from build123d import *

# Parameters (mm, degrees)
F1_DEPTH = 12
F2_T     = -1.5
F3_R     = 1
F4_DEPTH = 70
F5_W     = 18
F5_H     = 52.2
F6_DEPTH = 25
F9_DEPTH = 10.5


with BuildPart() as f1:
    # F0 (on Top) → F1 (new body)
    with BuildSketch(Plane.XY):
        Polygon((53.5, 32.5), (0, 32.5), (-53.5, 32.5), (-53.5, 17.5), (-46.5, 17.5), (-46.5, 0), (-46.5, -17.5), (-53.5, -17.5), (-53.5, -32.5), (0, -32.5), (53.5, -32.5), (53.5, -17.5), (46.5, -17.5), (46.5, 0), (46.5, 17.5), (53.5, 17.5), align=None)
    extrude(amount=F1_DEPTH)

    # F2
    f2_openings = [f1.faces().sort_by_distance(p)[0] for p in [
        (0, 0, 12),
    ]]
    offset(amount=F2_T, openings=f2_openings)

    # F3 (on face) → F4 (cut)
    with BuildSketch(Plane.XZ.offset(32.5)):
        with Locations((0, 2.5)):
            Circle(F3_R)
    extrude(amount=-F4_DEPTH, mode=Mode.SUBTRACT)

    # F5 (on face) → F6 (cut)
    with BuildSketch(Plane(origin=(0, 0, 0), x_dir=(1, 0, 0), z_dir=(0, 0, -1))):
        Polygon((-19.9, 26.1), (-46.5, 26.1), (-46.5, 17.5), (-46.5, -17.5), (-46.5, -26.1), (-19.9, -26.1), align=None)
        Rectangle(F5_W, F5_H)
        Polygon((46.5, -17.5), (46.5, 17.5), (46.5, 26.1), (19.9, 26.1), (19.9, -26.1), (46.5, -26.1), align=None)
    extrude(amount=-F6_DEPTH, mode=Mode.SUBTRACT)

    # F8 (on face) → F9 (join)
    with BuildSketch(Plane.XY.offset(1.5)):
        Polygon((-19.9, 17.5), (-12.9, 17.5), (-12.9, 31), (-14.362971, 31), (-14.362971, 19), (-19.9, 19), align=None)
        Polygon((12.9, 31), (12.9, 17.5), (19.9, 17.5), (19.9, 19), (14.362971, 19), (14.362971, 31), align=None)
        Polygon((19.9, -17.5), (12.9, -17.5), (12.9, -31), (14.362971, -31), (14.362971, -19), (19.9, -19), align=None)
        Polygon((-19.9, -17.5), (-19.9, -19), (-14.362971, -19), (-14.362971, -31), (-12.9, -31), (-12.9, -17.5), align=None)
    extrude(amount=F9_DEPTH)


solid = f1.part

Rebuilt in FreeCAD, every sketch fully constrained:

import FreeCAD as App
import Part
import Sketcher

V = App.Vector
Q = App.Units.Quantity


def faces_at(feature, points):
    """Names of the faces that lie closest to the given points."""
    faces = feature.Shape.Faces
    near = lambda p: min(range(len(faces)), key=lambda i: faces[i].distToShape(Part.Vertex(*p))[0])
    return sorted({f"Face{near(p) + 1}" for p in points})


def add_polygon(sketch, points):
    """Adds a closed chain of lines whose ends are joined by coincident constraints."""
    first, n = sketch.GeometryCount, len(points)
    for a, b in zip(points, points[1:] + points[:1]):
        sketch.addGeometry(Part.LineSegment(App.Vector(*a, 0), App.Vector(*b, 0)), False)
    for i in range(n):
        sketch.addConstraint(Sketcher.Constraint("Coincident", first + i, 2, first + (i + 1) % n, 1))

doc = App.newDocument("Part")
params = doc.addObject("Spreadsheet::Sheet", "Params")
for row, (alias, value) in enumerate([
    ("sketch1_width", "107 mm"),
    ("sketch1_width2", "7 mm"),
    ("sketch1_height", "15 mm"),
    ("sketch1_height2", "35 mm"),
    ("pad1_length", "12 mm"),
    ("thickness_wall", "1.5 mm"),
    ("sketch2_diameter", "2 mm"),
    ("pocket1_length", "70 mm"),
    ("sketch3_width", "18 mm"),
    ("sketch3_width2", "26.6 mm"),
    ("sketch3_height", "52.2 mm"),
    ("pocket2_length", "25 mm"),
    ("sketch4_width", "7 mm"),
    ("sketch4_height", "12 mm"),
    ("sketch4_height2", "13.5 mm"),
    ("pad2_length", "10.5 mm"),
], start=1):
    params.set(f"A{row}", alias)
    params.set(f"B{row}", "=" + value)
    params.setAlias(f"B{row}", alias)

body = doc.addObject("PartDesign::Body", "Body")

sketch1 = doc.addObject("Sketcher::SketchObject", "Sketch")
body.addObject(sketch1)
sketch1.AttachmentSupport = (doc.XY_Plane, [""])
sketch1.MapMode = "FlatFace"
add_polygon(sketch1, [(54, 32), (-54, 32), (-54, 18), (-46, 18), (-46, -18), (-54, -18), (-54, -32), (54, -32), (54, -18), (46, -18), (46, 18), (54, 18)])
sketch1.addConstraint(Sketcher.Constraint("Horizontal", 0))
sketch1.addConstraint(Sketcher.Constraint("Vertical", 1))
sketch1.addConstraint(Sketcher.Constraint("Horizontal", 2))
sketch1.addConstraint(Sketcher.Constraint("Vertical", 3))
sketch1.addConstraint(Sketcher.Constraint("Horizontal", 4))
sketch1.addConstraint(Sketcher.Constraint("Vertical", 5))
sketch1.addConstraint(Sketcher.Constraint("Horizontal", 6))
sketch1.addConstraint(Sketcher.Constraint("Vertical", 7))
sketch1.addConstraint(Sketcher.Constraint("Horizontal", 8))
sketch1.addConstraint(Sketcher.Constraint("Vertical", 9))
sketch1.addConstraint(Sketcher.Constraint("Horizontal", 10))
sketch1.addConstraint(Sketcher.Constraint("Vertical", 11))
sketch1.addConstraint(Sketcher.Constraint("Symmetric", 0, 2, 6, 2, -1, 1))
sketch1.addConstraint(Sketcher.Constraint("Symmetric", 2, 2, 8, 2, -1, 1))
sketch1.addConstraint(Sketcher.Constraint("Symmetric", 4, 2, 10, 2, -1, 1))
sketch1.addConstraint(Sketcher.Constraint("Symmetric", 4, 2, 7, 2, -2))
sketch1.addConstraint(Sketcher.Constraint("DistanceX", 0, 2, 0, 1, Q("107 mm")))
sketch1.addConstraint(Sketcher.Constraint("DistanceX", 2, 1, 2, 2, Q("7 mm")))
sketch1.addConstraint(Sketcher.Constraint("DistanceY", 1, 2, 1, 1, Q("15 mm")))
sketch1.addConstraint(Sketcher.Constraint("DistanceY", 3, 2, 3, 1, Q("35 mm")))
sketch1.setExpression("Constraints[28]", "Params.sketch1_width")
sketch1.setExpression("Constraints[29]", "Params.sketch1_width2")
sketch1.setExpression("Constraints[30]", "Params.sketch1_height")
sketch1.setExpression("Constraints[31]", "Params.sketch1_height2")
pad1 = doc.addObject("PartDesign::Pad", "Pad")
body.addObject(pad1)
pad1.Profile = sketch1
pad1.setExpression("Length", "Params.pad1_length")
doc.recompute()

thickness = doc.addObject("PartDesign::Thickness", "Thickness")
body.addObject(thickness)
thickness.Base = (pad1, faces_at(pad1, [(0, 0, 12)]))
thickness.setExpression("Value", "Params.thickness_wall")
thickness.Reversed = True
thickness.Join = "Arc"

sketch2 = doc.addObject("Sketcher::SketchObject", "Sketch001")
body.addObject(sketch2)
sketch2.AttachmentSupport = (doc.XZ_Plane, [""])
sketch2.MapMode = "FlatFace"
sketch2.AttachmentOffset = App.Placement(V(0, 0, 32.5), App.Rotation())
sketch2.addGeometry(Part.Circle(V(0, 2.5, 0), V(0, 0, 1), 1), False)
sketch2.addConstraint(Sketcher.Constraint("PointOnObject", 0, 3, -2))
sketch2.addConstraint(Sketcher.Constraint("Diameter", 0, Q("2 mm")))
sketch2.addConstraint(Sketcher.Constraint("DistanceY", -1, 1, 0, 3, Q("2.5 mm")))
sketch2.setExpression("Constraints[1]", "Params.sketch2_diameter")
pocket1 = doc.addObject("PartDesign::Pocket", "Pocket")
body.addObject(pocket1)
pocket1.Profile = sketch2
pocket1.setExpression("Length", "Params.pocket1_length")

sketch3 = doc.addObject("Sketcher::SketchObject", "Sketch002")
body.addObject(sketch3)
sketch3.AttachmentSupport = (doc.XY_Plane, [""])
sketch3.MapMode = "FlatFace"
add_polygon(sketch3, [(-20, -26), (-46, -26), (-46, 26), (-20, 26)])
add_polygon(sketch3, [(-9, -26), (-9, 26), (9, 26), (9, -26)])
add_polygon(sketch3, [(46, -26), (20, -26), (20, 26), (46, 26)])
sketch3.addConstraint(Sketcher.Constraint("Horizontal", 0))
sketch3.addConstraint(Sketcher.Constraint("Vertical", 1))
sketch3.addConstraint(Sketcher.Constraint("Horizontal", 2))
sketch3.addConstraint(Sketcher.Constraint("Vertical", 3))
sketch3.addConstraint(Sketcher.Constraint("Vertical", 4))
sketch3.addConstraint(Sketcher.Constraint("Horizontal", 5))
sketch3.addConstraint(Sketcher.Constraint("Vertical", 6))
sketch3.addConstraint(Sketcher.Constraint("Horizontal", 7))
sketch3.addConstraint(Sketcher.Constraint("Horizontal", 8))
sketch3.addConstraint(Sketcher.Constraint("Vertical", 9))
sketch3.addConstraint(Sketcher.Constraint("Horizontal", 10))
sketch3.addConstraint(Sketcher.Constraint("Vertical", 11))
sketch3.addConstraint(Sketcher.Constraint("Symmetric", 4, 2, 6, 2, -1, 1))
sketch3.addConstraint(Sketcher.Constraint("Symmetric", 2, 2, 8, 2, -1, 1))
sketch3.addConstraint(Sketcher.Constraint("Symmetric", 0, 2, 10, 2, -1, 1))
sketch3.addConstraint(Sketcher.Constraint("Horizontal", 2, 2, 4, 2))
sketch3.addConstraint(Sketcher.Constraint("Horizontal", 3, 2, 6, 2))
sketch3.addConstraint(Sketcher.Constraint("DistanceX", 5, 1, 5, 2, Q("18 mm")))
sketch3.addConstraint(Sketcher.Constraint("DistanceX", 0, 2, 0, 1, Q("26.6 mm")))
sketch3.addConstraint(Sketcher.Constraint("DistanceY", 1, 1, 1, 2, Q("52.2 mm")))
sketch3.addConstraint(Sketcher.Constraint("DistanceX", 0, 2, -1, 1, Q("46.5 mm")))
sketch3.setExpression("Constraints[29]", "Params.sketch3_width")
sketch3.setExpression("Constraints[30]", "Params.sketch3_width2")
sketch3.setExpression("Constraints[31]", "Params.sketch3_height")
pocket2 = doc.addObject("PartDesign::Pocket", "Pocket001")
body.addObject(pocket2)
pocket2.Profile = sketch3
pocket2.setExpression("Length", "Params.pocket2_length")
pocket2.Reversed = True

sketch4 = doc.addObject("Sketcher::SketchObject", "Sketch003")
body.addObject(sketch4)
sketch4.AttachmentSupport = (doc.XY_Plane, [""])
sketch4.MapMode = "FlatFace"
sketch4.AttachmentOffset = App.Placement(V(0, 0, 1.5), App.Rotation())
add_polygon(sketch4, [(-19.9, 17.5), (-12.9, 17.5), (-12.9, 31), (-14.4, 31), (-14.4, 19), (-19.9, 19)])
add_polygon(sketch4, [(12.9, 31), (12.9, 17.5), (19.9, 17.5), (19.9, 19), (14.4, 19), (14.4, 31)])
add_polygon(sketch4, [(19.9, -17.5), (12.9, -17.5), (12.9, -31), (14.4, -31), (14.4, -19), (19.9, -19)])
add_polygon(sketch4, [(-19.9, -17.5), (-19.9, -19), (-14.4, -19), (-14.4, -31), (-12.9, -31), (-12.9, -17.5)])
sketch4.addConstraint(Sketcher.Constraint("Horizontal", 0))
sketch4.addConstraint(Sketcher.Constraint("Vertical", 1))
sketch4.addConstraint(Sketcher.Constraint("Horizontal", 2))
sketch4.addConstraint(Sketcher.Constraint("Vertical", 3))
sketch4.addConstraint(Sketcher.Constraint("Horizontal", 4))
sketch4.addConstraint(Sketcher.Constraint("Vertical", 5))
sketch4.addConstraint(Sketcher.Constraint("Vertical", 6))
sketch4.addConstraint(Sketcher.Constraint("Horizontal", 7))
sketch4.addConstraint(Sketcher.Constraint("Vertical", 8))
sketch4.addConstraint(Sketcher.Constraint("Horizontal", 9))
sketch4.addConstraint(Sketcher.Constraint("Vertical", 10))
sketch4.addConstraint(Sketcher.Constraint("Horizontal", 11))
sketch4.addConstraint(Sketcher.Constraint("Horizontal", 12))
sketch4.addConstraint(Sketcher.Constraint("Vertical", 13))
sketch4.addConstraint(Sketcher.Constraint("Horizontal", 14))
sketch4.addConstraint(Sketcher.Constraint("Vertical", 15))
sketch4.addConstraint(Sketcher.Constraint("Horizontal", 16))
sketch4.addConstraint(Sketcher.Constraint("Vertical", 17))
sketch4.addConstraint(Sketcher.Constraint("Vertical", 18))
sketch4.addConstraint(Sketcher.Constraint("Horizontal", 19))
sketch4.addConstraint(Sketcher.Constraint("Vertical", 20))
sketch4.addConstraint(Sketcher.Constraint("Horizontal", 21))
sketch4.addConstraint(Sketcher.Constraint("Vertical", 22))
sketch4.addConstraint(Sketcher.Constraint("Horizontal", 23))
sketch4.addConstraint(Sketcher.Constraint("Symmetric", 0, 2, 12, 2, -1, 1))
sketch4.addConstraint(Sketcher.Constraint("Symmetric", 2, 2, 14, 2, -1, 1))
sketch4.addConstraint(Sketcher.Constraint("Symmetric", 4, 2, 16, 2, -1, 1))
sketch4.addConstraint(Sketcher.Constraint("Symmetric", 8, 2, 18, 2, -1, 1))
sketch4.addConstraint(Sketcher.Constraint("Symmetric", 10, 2, 20, 2, -1, 1))
sketch4.addConstraint(Sketcher.Constraint("Symmetric", 6, 2, 22, 2, -1, 1))
sketch4.addConstraint(Sketcher.Constraint("Symmetric", 0, 2, 6, 2, -2))
sketch4.addConstraint(Sketcher.Constraint("Symmetric", 4, 2, 8, 2, -2))
sketch4.addConstraint(Sketcher.Constraint("Symmetric", 2, 2, 10, 2, -2))
sketch4.addConstraint(Sketcher.Constraint("DistanceX", 0, 1, 0, 2, Q("7 mm")))
sketch4.addConstraint(Sketcher.Constraint("DistanceY", 3, 2, 3, 1, Q("12 mm")))
sketch4.addConstraint(Sketcher.Constraint("DistanceY", 1, 1, 1, 2, Q("13.5 mm")))
sketch4.addConstraint(Sketcher.Constraint("DistanceY", -1, 1, 1, 2, Q("31 mm")))
sketch4.addConstraint(Sketcher.Constraint("DistanceX", 0, 2, -1, 1, Q("12.9 mm")))
sketch4.addConstraint(Sketcher.Constraint("DistanceX", 2, 2, 2, 1, Q("1.462971 mm")))
sketch4.setExpression("Constraints[57]", "Params.sketch4_width")
sketch4.setExpression("Constraints[58]", "Params.sketch4_height")
sketch4.setExpression("Constraints[59]", "Params.sketch4_height2")
pad2 = doc.addObject("PartDesign::Pad", "Pad001")
body.addObject(pad2)
pad2.Profile = sketch4
pad2.setExpression("Length", "Params.pad2_length")

doc.recompute()
